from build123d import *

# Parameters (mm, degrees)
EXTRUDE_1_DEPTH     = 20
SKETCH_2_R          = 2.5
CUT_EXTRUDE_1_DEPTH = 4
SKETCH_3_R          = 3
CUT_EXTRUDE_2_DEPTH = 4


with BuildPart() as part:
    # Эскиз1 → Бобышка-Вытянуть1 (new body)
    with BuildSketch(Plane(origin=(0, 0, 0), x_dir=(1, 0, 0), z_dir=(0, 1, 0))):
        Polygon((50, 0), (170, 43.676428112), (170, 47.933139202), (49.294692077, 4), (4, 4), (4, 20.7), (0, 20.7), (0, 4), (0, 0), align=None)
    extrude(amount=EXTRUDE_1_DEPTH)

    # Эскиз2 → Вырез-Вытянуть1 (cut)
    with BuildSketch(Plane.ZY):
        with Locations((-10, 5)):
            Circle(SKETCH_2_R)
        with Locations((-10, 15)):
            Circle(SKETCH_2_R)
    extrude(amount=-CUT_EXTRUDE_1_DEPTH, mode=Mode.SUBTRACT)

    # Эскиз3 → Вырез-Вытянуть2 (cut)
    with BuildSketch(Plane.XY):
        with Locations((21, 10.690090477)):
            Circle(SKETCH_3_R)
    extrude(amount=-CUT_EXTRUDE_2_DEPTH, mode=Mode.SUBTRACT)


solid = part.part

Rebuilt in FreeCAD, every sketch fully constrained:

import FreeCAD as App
import Part
import Sketcher
Q = App.Units.Quantity


def add_polygon(sketch, points):
    """Adds a closed chain of lines whose ends are joined by coincident constraints."""
    first, n = sketch.GeometryCount, len(points)
    for a, b in zip(points, points[1:] + points[:1]):
        sketch.addGeometry(Part.LineSegment(App.Vector(*a, 0), App.Vector(*b, 0)), False)
    for i in range(n):
        sketch.addConstraint(Sketcher.Constraint("Coincident", first + i, 2, first + (i + 1) % n, 1))

doc = App.newDocument("Part")
body = doc.addObject("PartDesign::Body", "Body")

# Sketch on XZ plane
sketch1 = doc.addObject("Sketcher::SketchObject", "Sketch")
body.addObject(sketch1)
sketch1.AttachmentSupport = (doc.XZ_Plane, [""])
sketch1.MapMode = "FlatFace"
add_polygon(sketch1, [(50, 0), (170, -43.7), (170, -47.9), (49.3, -4), (4, -4), (4, -20.7), (0, -20.7), (0, 0)])  # lines 0-7
sketch1.addConstraint(Sketcher.Constraint("Vertical", 1))
sketch1.addConstraint(Sketcher.Constraint("Horizontal", 3))
sketch1.addConstraint(Sketcher.Constraint("Vertical", 4))
sketch1.addConstraint(Sketcher.Constraint("Horizontal", 5))
sketch1.addConstraint(Sketcher.Constraint("Vertical", 6))
sketch1.addConstraint(Sketcher.Constraint("Horizontal", 7))
sketch1.addConstraint(Sketcher.Constraint("Coincident", 6, 2, -1, 1))
sketch1.addConstraint(Sketcher.Constraint("Parallel", 0, 2))
sketch1.addConstraint(Sketcher.Constraint("DistanceX", 5, 2, 5, 1, 4.0))
sketch1.addConstraint(Sketcher.Constraint("DistanceX", 7, 1, 7, 2, 50.0))
sketch1.addConstraint(Sketcher.Constraint("Angle", 0, Q("-20 deg")))
sketch1.addConstraint(Sketcher.Constraint("DistanceY", 4, 2, 4, 1, 16.7))
sketch1.addConstraint(Sketcher.Constraint("DistanceY", 6, 1, 6, 2, 20.7))
sketch1.addConstraint(Sketcher.Constraint("DistanceX", -1, 1, 0, 2, 170.0))
sketch1.addConstraint(Sketcher.Constraint("DistanceY", 1, 2, 1, 1, 4.256711))
pad1 = doc.addObject("PartDesign::Pad", "Pad")
body.addObject(pad1)
pad1.Profile = sketch1
pad1.Length = 20
pad1.Reversed = True

# Sketch on YZ plane
sketch2 = doc.addObject("Sketcher::SketchObject", "Sketch001")
body.addObject(sketch2)
sketch2.AttachmentSupport = (doc.YZ_Plane, [""])
sketch2.MapMode = "FlatFace"
sketch2.addGeometry(Part.Circle(App.Vector(5, -10, 0), App.Vector(0, 0, 1), 2.5), False)
sketch2.addGeometry(Part.Circle(App.Vector(15, -10, 0), App.Vector(0, 0, 1), 2.5), False)
sketch2.addConstraint(Sketcher.Constraint("Equal", 0, 1))
sketch2.addConstraint(Sketcher.Constraint("Horizontal", 0, 3, 1, 3))
sketch2.addConstraint(Sketcher.Constraint("Diameter", 0, 5.0))
sketch2.addConstraint(Sketcher.Constraint("DistanceX", -1, 1, 0, 3, 5.0))
sketch2.addConstraint(Sketcher.Constraint("DistanceY", 0, 3, -1, 1, 10.0))
sketch2.addConstraint(Sketcher.Constraint("DistanceX", -1, 1, 1, 3, 15.0))
pocket1 = doc.addObject("PartDesign::Pocket", "Pocket")
body.addObject(pocket1)
pocket1.Profile = sketch2
pocket1.Length = 4
pocket1.Reversed = True

# Sketch on XY plane
sketch3 = doc.addObject("Sketcher::SketchObject", "Sketch002")
body.addObject(sketch3)
sketch3.AttachmentSupport = (doc.XY_Plane, [""])
sketch3.MapMode = "FlatFace"
sketch3.addGeometry(Part.Circle(App.Vector(21, 10.7, 0), App.Vector(0, 0, 1), 3), False)
sketch3.addConstraint(Sketcher.Constraint("Diameter", 0, 6.0))
sketch3.addConstraint(Sketcher.Constraint("DistanceX", -1, 1, 0, 3, 21.0))
sketch3.addConstraint(Sketcher.Constraint("DistanceY", -1, 1, 0, 3, 10.69009))
pocket2 = doc.addObject("PartDesign::Pocket", "Pocket001")
body.addObject(pocket2)
pocket2.Profile = sketch3
pocket2.Length = 4

doc.recompute()
